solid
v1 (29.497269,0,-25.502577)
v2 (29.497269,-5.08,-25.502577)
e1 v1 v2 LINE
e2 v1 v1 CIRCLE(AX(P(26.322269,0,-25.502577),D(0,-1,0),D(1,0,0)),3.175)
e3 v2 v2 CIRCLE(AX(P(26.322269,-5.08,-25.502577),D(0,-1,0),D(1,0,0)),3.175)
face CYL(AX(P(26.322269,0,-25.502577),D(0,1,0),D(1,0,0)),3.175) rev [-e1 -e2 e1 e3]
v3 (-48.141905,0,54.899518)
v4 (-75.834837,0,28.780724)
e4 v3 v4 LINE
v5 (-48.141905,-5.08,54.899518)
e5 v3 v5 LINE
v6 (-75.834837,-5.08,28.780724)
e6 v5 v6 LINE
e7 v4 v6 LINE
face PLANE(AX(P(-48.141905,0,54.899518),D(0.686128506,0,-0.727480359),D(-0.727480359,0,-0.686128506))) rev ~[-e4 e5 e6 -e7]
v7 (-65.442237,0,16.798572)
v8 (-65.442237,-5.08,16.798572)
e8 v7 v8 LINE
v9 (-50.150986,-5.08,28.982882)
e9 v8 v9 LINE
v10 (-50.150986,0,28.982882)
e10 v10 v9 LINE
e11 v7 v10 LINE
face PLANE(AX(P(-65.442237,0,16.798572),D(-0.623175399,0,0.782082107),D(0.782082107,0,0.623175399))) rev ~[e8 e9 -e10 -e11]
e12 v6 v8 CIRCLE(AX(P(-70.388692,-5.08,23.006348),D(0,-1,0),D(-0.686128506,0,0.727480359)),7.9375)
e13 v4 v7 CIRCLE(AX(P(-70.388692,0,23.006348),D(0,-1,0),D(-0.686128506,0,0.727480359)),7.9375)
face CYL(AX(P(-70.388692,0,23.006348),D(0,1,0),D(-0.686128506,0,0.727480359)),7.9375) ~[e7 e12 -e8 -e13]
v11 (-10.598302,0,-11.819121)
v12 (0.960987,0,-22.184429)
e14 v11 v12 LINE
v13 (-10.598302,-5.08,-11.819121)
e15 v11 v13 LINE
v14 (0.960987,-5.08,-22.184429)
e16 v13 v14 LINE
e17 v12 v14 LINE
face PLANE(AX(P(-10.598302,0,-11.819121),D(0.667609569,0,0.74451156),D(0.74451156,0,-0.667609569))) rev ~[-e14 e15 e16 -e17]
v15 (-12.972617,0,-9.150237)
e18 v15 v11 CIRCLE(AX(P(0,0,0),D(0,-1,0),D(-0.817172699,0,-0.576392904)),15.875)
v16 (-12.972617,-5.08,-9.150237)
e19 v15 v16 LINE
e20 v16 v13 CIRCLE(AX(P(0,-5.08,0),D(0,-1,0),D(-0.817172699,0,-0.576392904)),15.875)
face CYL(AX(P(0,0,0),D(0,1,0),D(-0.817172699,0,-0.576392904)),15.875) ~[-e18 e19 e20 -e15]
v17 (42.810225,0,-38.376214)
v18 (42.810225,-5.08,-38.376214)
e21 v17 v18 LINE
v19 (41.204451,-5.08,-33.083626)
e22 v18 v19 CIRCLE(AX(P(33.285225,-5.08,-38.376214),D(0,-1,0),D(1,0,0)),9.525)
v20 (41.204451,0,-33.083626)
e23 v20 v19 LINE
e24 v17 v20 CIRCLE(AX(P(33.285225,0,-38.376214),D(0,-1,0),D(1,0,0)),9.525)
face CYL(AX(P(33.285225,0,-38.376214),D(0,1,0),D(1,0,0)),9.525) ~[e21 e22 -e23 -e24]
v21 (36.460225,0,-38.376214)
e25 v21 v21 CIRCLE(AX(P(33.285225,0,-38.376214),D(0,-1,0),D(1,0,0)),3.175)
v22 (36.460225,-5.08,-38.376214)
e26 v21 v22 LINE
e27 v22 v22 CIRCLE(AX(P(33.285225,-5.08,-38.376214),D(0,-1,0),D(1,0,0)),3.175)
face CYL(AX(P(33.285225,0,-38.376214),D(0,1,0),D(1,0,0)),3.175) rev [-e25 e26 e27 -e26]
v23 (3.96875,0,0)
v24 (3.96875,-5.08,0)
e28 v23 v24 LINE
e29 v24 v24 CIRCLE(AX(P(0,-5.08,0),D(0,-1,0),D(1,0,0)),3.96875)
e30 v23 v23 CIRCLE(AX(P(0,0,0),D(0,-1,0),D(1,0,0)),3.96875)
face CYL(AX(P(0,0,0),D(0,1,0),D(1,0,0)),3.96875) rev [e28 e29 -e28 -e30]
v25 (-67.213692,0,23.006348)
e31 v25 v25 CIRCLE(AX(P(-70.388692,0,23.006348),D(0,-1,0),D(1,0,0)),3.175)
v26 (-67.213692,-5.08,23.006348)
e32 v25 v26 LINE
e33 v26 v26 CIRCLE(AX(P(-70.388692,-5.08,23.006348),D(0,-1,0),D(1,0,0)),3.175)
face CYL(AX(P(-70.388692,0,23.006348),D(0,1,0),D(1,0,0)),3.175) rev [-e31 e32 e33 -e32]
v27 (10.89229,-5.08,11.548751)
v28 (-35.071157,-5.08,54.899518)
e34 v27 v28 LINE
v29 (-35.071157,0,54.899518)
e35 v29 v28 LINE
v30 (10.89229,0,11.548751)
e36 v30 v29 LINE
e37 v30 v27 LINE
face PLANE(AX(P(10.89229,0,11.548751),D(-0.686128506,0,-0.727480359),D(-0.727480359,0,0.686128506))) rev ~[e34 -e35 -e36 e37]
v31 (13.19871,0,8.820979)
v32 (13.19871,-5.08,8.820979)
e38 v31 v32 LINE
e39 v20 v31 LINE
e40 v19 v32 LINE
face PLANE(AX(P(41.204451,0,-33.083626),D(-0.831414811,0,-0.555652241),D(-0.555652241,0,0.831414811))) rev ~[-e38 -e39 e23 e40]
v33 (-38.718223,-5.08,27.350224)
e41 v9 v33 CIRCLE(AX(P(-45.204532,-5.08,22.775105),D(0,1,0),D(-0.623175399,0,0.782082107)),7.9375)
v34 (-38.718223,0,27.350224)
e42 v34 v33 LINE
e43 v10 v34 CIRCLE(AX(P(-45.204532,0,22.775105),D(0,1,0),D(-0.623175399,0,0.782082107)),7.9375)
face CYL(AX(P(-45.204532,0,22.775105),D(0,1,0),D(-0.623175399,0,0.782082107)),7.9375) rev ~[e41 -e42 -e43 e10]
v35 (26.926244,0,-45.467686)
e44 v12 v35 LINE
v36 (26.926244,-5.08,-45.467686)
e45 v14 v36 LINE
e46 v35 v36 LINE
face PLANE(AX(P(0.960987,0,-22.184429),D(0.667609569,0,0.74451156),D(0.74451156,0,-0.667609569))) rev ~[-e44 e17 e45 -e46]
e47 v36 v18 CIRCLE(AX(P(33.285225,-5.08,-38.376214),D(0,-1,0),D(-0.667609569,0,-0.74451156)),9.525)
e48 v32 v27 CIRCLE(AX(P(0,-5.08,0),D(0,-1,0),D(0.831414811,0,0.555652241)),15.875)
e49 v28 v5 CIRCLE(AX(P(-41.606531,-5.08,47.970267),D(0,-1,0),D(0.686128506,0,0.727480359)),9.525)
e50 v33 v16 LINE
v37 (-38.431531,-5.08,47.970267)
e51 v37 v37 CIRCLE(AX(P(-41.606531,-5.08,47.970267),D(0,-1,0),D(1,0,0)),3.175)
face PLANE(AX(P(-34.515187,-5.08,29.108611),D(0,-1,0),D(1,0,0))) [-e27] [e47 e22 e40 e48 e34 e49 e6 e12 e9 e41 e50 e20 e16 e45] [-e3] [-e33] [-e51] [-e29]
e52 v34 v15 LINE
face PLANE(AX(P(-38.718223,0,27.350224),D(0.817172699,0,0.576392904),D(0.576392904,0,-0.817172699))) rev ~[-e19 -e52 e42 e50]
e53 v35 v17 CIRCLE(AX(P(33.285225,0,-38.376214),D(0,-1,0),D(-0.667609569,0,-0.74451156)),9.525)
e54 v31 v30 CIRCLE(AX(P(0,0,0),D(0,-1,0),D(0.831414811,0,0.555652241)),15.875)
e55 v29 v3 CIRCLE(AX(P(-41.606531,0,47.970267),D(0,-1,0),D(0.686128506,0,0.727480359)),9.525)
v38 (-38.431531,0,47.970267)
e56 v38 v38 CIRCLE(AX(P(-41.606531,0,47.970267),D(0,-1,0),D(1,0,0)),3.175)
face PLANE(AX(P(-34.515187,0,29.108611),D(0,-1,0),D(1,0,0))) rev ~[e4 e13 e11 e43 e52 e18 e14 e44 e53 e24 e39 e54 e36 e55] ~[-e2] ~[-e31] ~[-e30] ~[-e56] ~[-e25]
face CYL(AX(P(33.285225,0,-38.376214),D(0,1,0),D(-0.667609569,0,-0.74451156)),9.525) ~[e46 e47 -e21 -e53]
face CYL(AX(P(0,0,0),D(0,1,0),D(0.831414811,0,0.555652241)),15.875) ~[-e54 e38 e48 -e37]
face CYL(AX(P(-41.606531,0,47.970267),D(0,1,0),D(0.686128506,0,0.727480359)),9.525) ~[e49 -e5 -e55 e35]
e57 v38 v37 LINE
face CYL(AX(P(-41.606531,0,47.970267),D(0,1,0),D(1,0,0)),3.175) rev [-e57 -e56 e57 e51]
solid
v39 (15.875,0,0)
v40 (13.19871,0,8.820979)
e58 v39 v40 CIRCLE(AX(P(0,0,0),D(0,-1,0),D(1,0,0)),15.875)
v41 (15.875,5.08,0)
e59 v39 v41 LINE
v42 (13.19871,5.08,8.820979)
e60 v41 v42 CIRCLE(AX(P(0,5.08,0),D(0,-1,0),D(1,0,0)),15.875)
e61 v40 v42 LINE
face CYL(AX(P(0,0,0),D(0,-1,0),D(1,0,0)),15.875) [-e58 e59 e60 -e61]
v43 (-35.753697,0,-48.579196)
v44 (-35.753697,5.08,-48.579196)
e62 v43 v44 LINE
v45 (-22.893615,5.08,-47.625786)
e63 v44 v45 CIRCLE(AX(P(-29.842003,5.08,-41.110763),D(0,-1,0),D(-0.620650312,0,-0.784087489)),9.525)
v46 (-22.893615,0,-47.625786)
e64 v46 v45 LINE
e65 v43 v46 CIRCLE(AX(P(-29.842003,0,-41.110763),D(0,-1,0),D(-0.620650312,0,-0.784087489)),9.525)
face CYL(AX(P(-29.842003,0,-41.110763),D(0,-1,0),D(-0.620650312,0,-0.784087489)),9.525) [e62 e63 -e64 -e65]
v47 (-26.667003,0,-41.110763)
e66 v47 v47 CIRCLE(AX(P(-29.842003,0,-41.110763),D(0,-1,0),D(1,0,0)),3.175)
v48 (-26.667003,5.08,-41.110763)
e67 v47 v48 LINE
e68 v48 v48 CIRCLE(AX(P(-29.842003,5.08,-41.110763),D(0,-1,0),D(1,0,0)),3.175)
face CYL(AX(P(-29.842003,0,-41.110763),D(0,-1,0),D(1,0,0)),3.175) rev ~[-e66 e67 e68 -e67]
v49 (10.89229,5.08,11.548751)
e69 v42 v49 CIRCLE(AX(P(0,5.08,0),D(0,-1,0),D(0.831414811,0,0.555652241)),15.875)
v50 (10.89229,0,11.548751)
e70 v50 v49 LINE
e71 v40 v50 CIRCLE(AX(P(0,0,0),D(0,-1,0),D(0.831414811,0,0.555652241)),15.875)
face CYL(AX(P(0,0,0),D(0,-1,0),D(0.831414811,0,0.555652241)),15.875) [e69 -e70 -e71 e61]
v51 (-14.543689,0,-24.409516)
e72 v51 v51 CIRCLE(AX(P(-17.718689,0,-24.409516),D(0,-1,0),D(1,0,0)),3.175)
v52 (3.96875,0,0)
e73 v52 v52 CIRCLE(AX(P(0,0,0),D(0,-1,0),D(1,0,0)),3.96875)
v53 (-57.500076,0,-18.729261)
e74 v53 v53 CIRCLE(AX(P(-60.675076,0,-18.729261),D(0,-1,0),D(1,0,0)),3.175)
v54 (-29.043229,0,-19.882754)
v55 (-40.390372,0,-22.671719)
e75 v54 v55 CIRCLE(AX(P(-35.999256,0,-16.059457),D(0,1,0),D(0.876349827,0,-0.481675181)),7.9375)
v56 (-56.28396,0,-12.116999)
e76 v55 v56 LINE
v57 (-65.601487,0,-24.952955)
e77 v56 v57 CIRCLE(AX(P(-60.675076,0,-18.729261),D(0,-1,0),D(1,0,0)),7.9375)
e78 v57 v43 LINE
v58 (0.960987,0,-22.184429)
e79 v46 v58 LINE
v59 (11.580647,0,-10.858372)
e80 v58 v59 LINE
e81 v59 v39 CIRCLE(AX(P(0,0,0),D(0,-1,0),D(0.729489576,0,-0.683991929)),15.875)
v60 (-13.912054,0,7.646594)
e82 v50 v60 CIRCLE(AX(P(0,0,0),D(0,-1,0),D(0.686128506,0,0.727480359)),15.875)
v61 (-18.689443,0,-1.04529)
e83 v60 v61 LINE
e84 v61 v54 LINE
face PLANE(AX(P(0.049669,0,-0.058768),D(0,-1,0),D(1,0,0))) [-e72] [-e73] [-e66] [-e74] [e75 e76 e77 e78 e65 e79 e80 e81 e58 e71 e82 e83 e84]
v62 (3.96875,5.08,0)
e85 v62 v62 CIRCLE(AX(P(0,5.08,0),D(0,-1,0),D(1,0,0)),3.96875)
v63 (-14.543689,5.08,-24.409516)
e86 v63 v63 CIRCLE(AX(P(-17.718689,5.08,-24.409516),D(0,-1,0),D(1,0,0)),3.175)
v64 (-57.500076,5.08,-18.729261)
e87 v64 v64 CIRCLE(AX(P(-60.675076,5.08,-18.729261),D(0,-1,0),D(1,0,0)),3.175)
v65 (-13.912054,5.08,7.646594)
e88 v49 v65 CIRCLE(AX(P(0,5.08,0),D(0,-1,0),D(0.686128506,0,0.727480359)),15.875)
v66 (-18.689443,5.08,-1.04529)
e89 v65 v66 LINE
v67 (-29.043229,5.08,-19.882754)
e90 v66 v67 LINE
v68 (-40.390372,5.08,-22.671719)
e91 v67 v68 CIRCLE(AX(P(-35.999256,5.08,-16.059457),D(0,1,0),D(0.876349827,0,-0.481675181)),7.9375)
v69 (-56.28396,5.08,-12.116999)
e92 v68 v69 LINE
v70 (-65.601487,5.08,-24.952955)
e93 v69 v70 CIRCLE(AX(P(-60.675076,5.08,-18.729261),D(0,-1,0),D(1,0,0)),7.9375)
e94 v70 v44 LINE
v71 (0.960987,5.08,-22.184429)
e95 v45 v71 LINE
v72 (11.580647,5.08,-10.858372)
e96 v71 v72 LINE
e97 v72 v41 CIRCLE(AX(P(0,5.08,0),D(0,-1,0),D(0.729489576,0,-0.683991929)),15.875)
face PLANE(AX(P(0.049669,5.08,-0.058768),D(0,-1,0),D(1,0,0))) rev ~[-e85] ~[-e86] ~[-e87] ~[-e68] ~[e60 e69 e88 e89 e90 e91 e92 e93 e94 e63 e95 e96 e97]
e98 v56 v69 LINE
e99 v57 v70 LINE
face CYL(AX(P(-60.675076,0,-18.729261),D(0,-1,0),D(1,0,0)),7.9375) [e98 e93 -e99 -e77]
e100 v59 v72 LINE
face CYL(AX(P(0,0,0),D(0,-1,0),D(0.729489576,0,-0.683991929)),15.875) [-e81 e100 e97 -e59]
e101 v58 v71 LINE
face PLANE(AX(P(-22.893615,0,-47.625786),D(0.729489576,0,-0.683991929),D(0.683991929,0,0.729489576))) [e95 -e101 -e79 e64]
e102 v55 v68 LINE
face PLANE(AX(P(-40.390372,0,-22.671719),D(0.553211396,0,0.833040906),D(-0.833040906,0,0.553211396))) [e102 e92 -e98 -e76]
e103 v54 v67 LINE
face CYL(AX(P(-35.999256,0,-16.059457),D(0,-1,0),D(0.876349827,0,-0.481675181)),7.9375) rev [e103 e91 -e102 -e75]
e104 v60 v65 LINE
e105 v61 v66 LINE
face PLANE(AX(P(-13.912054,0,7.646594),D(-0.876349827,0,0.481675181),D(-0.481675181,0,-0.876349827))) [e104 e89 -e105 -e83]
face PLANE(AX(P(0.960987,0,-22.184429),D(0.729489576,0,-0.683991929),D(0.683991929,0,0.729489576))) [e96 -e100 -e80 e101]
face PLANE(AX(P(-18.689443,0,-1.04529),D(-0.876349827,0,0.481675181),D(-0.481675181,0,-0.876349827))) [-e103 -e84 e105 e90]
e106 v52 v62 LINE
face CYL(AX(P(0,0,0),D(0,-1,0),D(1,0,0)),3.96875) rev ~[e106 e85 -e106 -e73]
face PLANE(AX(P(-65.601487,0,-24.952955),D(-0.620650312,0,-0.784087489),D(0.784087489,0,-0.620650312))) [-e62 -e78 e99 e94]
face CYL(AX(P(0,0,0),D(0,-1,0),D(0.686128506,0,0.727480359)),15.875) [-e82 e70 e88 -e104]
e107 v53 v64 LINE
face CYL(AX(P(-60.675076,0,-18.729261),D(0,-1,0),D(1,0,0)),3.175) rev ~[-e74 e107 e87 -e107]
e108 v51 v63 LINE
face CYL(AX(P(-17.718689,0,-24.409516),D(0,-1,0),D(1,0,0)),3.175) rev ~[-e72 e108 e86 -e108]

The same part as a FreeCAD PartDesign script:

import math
import FreeCAD as App
import Part
import Sketcher

V = App.Vector
Q = App.Units.Quantity

doc = App.newDocument("Part")
body = doc.addObject("PartDesign::Body", "Body")

# Sketch on XZ plane
sketch1 = body.newObject("Sketcher::SketchObject", "Sketch")
sketch1.AttachmentSupport = (doc.getObject("XZ_Plane"), [""])
sketch1.MapMode = "FlatFace"
sketch1.addGeometry([
    Part.ArcOfCircle(Part.Circle(V(0, 0, 0), V(0, 0, 1), 15.9), math.radians(-144.8), math.radians(-131.88)),  # 0
    Part.LineSegment(V(-10.6, -11.8, 0), V(1, -22.2, 0)),  # 1
    Part.LineSegment(V(1, -22.2, 0), V(26.9, -45.5, 0)),  # 2
    Part.ArcOfCircle(Part.Circle(V(33.3, -38.4, 0), V(0, 0, 1), 9.5), math.radians(-132), math.radians(0)),  # 3
    Part.ArcOfCircle(Part.Circle(V(33.3, -38.4, 0), V(0, 0, 1), 9.5), math.radians(0), math.radians(34)),  # 4
    Part.LineSegment(V(41.2, -33.1, 0), V(13.2, 8.8, 0)),  # 5
    Part.ArcOfCircle(Part.Circle(V(0, 0, 0), V(0, 0, 1), 15.9), math.radians(33.76), math.radians(46.68)),  # 6
    Part.LineSegment(V(10.9, 11.5, 0), V(-35.1, 54.9, 0)),  # 7
    Part.ArcOfCircle(Part.Circle(V(-41.6, 48, 0), V(0, 0, 1), 9.5), math.radians(47), math.radians(133)),  # 8
    Part.LineSegment(V(-48.1, 54.9, 0), V(-75.8, 28.8, 0)),  # 9
    Part.ArcOfCircle(Part.Circle(V(-70.4, 23, 0), V(0, 0, 1), 7.9), math.radians(133), math.radians(309)),  # 10
    Part.LineSegment(V(-65.4, 16.8, 0), V(-50.2, 29, 0)),  # 11
    Part.ArcOfCircle(Part.Circle(V(-45.2, 22.8, 0), V(0, 0, 1), 7.9), math.radians(35), math.radians(129)),  # 12
    Part.LineSegment(V(-38.7, 27.4, 0), V(-13, -9.2, 0)),  # 13
    Part.Circle(V(33.3, -38.4, 0), V(0, 0, 1), 3.2),  # 14
    Part.Circle(V(26.3, -25.5, 0), V(0, 0, 1), 3.2),  # 15
    Part.Circle(V(0, 0, 0), V(0, 0, 1), 4),  # 16
    Part.Circle(V(-70.4, 23, 0), V(0, 0, 1), 3.2),  # 17
    Part.Circle(V(-41.6, 48, 0), V(0, 0, 1), 3.2),  # 18
], False)
sketch1.addConstraint([
    Sketcher.Constraint("Tangent", 0, 2, 1, 1),
    Sketcher.Constraint("Coincident", 1, 2, 2, 1),
    Sketcher.Constraint("Tangent", 2, 2, 3, 1),
    Sketcher.Constraint("Tangent", 3, 2, 4, 1),
    Sketcher.Constraint("Tangent", 4, 2, 5, 1),
    Sketcher.Constraint("Tangent", 5, 2, 6, 1),
    Sketcher.Constraint("Tangent", 6, 2, 7, 1),
    Sketcher.Constraint("Tangent", 7, 2, 8, 1),
    Sketcher.Constraint("Tangent", 8, 2, 9, 1),
    Sketcher.Constraint("Tangent", 9, 2, 10, 1),
    Sketcher.Constraint("Tangent", 10, 2, 11, 1),
    Sketcher.Constraint("Tangent", 11, 2, 12, 2),
    Sketcher.Constraint("Tangent", 12, 1, 13, 1),
    Sketcher.Constraint("Tangent", 13, 2, 0, 1),
    Sketcher.Constraint("Coincident", 0, 3, -1, 1),
    Sketcher.Constraint("Coincident", 6, 3, -1, 1),
    Sketcher.Constraint("Coincident", 16, 3, -1, 1),
    Sketcher.Constraint("Coincident", 14, 3, 3, 3),
    Sketcher.Constraint("Coincident", 17, 3, 10, 3),
    Sketcher.Constraint("Coincident", 18, 3, 8, 3),
    Sketcher.Constraint("Equal", 3, 4),
    Sketcher.Constraint("Equal", 0, 6),
    Sketcher.Constraint("Equal", 4, 8),
    Sketcher.Constraint("Equal", 10, 12),
    Sketcher.Constraint("Equal", 14, 15),
    Sketcher.Constraint("Equal", 15, 17),
    Sketcher.Constraint("Equal", 17, 18),
    Sketcher.Constraint("Parallel", 1, 2),
    Sketcher.Constraint("Horizontal", 14, 3, 3, 2),
    Sketcher.Constraint("Horizontal", 7, 2, 8, 2),
    Sketcher.Constraint("Diameter", 14, Q("0.25 in")),
    Sketcher.Constraint("Diameter", 16, Q("0.3125 in")),
    Sketcher.Constraint("Radius", 0, Q("0.625 in")),
    Sketcher.Constraint("Radius", 3, Q("0.375 in")),
    Sketcher.Constraint("Radius", 10, Q("0.3125 in")),
    Sketcher.Constraint("DistanceX", 1, 2, 5, 2, Q("0.4818001 in")),
    Sketcher.Constraint("DistanceX", 0, 2, -1, 1, 10.598302),
    Sketcher.Constraint("DistanceX", 12, 3, 8, 3, 3.598),
    Sketcher.Constraint("DistanceY", 0, 2, 5, 2, 20.6401),
    Sketcher.Constraint("DistanceX", 9, 2, 10, 2, 10.3926),
    Sketcher.Constraint("DistanceX", 8, 3, -1, 1, 41.606531),
    Sketcher.Constraint("DistanceX", 10, 3, -1, 1, 70.388692),
    Sketcher.Constraint("DistanceY", -1, 1, 10, 3, 23.006348),
    Sketcher.Constraint("DistanceX", -1, 1, 15, 3, 26.322269),
    Sketcher.Constraint("DistanceY", 15, 3, 1, 2, 3.318148),
])
pad1 = body.newObject("PartDesign::Pad", "Pad")
pad1.Profile = sketch1
pad1.Length = Q("0.2 in")
body2 = doc.addObject("PartDesign::Body", "Body001")

# Sketch on XZ plane
sketch2 = body2.newObject("Sketcher::SketchObject", "Sketch001")
sketch2.AttachmentSupport = (doc.getObject("XZ_Plane001"), [""])
sketch2.MapMode = "FlatFace"
sketch2.addGeometry([
    Part.ArcOfCircle(Part.Circle(V(0, 0, 0), V(0, 0, 1), 15.875), math.radians(0), math.radians(33.755651)),  # 0
    Part.ArcOfCircle(Part.Circle(V(0, 0, 0), V(0, 0, 1), 15.875), math.radians(33.755651), math.radians(46.675578)),  # 1
    Part.ArcOfCircle(Part.Circle(V(0, 0, 0), V(0, 0, 1), 15.875), math.radians(46.675578), math.radians(151.205132)),  # 2
    Part.LineSegment(V(-13.912054, 7.646594, 0), V(-18.689443, -1.04529, 0)),  # 3
    Part.LineSegment(V(-18.689443, -1.04529, 0), V(-29.043229, -19.882754, 0)),  # 4
    Part.ArcOfCircle(Part.Circle(V(-35.999256, -16.059457, 0), V(0, 0, 1), 7.9375), math.radians(-123.587608), math.radians(-28.794868)),  # 5
    Part.LineSegment(V(-40.390372, -22.671719, 0), V(-56.28396, -12.116999, 0)),  # 6
    Part.ArcOfCircle(Part.Circle(V(-60.675076, -18.729261, 0), V(0, 0, 1), 7.9375), math.radians(56.412392), math.radians(231.636361)),  # 7
    Part.LineSegment(V(-65.601487, -24.952955, 0), V(-35.753697, -48.579196, 0)),  # 8
    Part.ArcOfCircle(Part.Circle(V(-29.842003, -41.110763, 0), V(0, 0, 1), 9.525), math.radians(-128.363639), math.radians(-43.15638)),  # 9
    Part.LineSegment(V(-22.893615, -47.625786, 0), V(0.960987, -22.184429, 0)),  # 10
    Part.LineSegment(V(0.960987, -22.184429, 0), V(11.580647, -10.858372, 0)),  # 11
    Part.ArcOfCircle(Part.Circle(V(0, 0, 0), V(0, 0, 1), 15.875), math.radians(-43.15638), math.radians(0)),  # 12
    Part.Circle(V(-29.842003, -41.110763, 0), V(0, 0, 1), 3.175),  # 13
    Part.Circle(V(-17.718689, -24.409516, 0), V(0, 0, 1), 3.175),  # 14
    Part.Circle(V(-60.675076, -18.729261, 0), V(0, 0, 1), 3.175),  # 15
    Part.Circle(V(0, 0, 0), V(0, 0, 1), 3.96875),  # 16
], False)
sketch2.addConstraint([
    Sketcher.Constraint("Coincident", 0, 2, 1, 1),
    Sketcher.Constraint("Coincident", 1, 2, 2, 1),
    Sketcher.Constraint("Coincident", 2, 2, 3, 1),
    Sketcher.Constraint("Coincident", 3, 2, 4, 1),
    Sketcher.Constraint("Coincident", 4, 2, 5, 2),
    Sketcher.Constraint("Coincident", 5, 1, 6, 1),
    Sketcher.Constraint("Coincident", 6, 2, 7, 1),
    Sketcher.Constraint("Coincident", 7, 2, 8, 1),
    Sketcher.Constraint("Coincident", 8, 2, 9, 1),
    Sketcher.Constraint("Coincident", 9, 2, 10, 1),
    Sketcher.Constraint("Coincident", 10, 2, 11, 1),
    Sketcher.Constraint("Coincident", 11, 2, 12, 1),
    Sketcher.Constraint("Coincident", 12, 2, 0, 1),
    Sketcher.Constraint("Coincident", 0, 3, -1, 1),
    Sketcher.Constraint("Coincident", 1, 3, -1, 1),
    Sketcher.Constraint("Coincident", 2, 3, -1, 1),
    Sketcher.Constraint("Coincident", 12, 3, -1, 1),
    Sketcher.Constraint("Coincident", 16, 3, -1, 1),
    Sketcher.Constraint("Coincident", 13, 3, 9, 3),
    Sketcher.Constraint("Coincident", 15, 3, 7, 3),
    Sketcher.Constraint("PointOnObject", 12, 2, -1),
    Sketcher.Constraint("Diameter", 13, Q("0.25 in")),
    Sketcher.Constraint("Diameter", 14, Q("0.25 in")),
    Sketcher.Constraint("Diameter", 15, Q("0.25 in")),
    Sketcher.Constraint("Diameter", 16, Q("0.3125 in")),
    Sketcher.Constraint("Radius", 0, Q("0.625 in")),
    Sketcher.Constraint("Radius", 5, Q("0.3125 in")),
    Sketcher.Constraint("Radius", 7, Q("0.3125 in")),
    Sketcher.Constraint("Radius", 9, Q("0.375 in")),
    Sketcher.Constraint("DistanceY", 7, 2, -1, 1, Q("0.9823998 in")),
    Sketcher.Constraint("DistanceY", 3, 2, 2, 2, Q("0.3422001 in")),
    Sketcher.Constraint("Distance", 6, 19.079001),
    Sketcher.Constraint("DistanceY", 6, 2, -1, 1, 12.116999),
    Sketcher.Constraint("Distance", 3, 9.91828),
    Sketcher.Constraint("Distance", 4, 21.495371),
    Sketcher.Constraint("Distance", 10, 34.87556),
    Sketcher.Constraint("DistanceY", 7, 3, -1, 1, 18.729261),
    Sketcher.Constraint("DistanceX", 14, 3, -1, 1, 17.718689),
    Sketcher.Constraint("DistanceX", -1, 1, 0, 2, 13.19871),
    Sketcher.Constraint("DistanceX", -1, 1, 1, 2, 10.89229),
    Sketcher.Constraint("DistanceY", 3, 2, -1, 1, 1.04529),
    Sketcher.Constraint("DistanceX", 4, 2, -1, 1, 29.043229),
    Sketcher.Constraint("DistanceX", 5, 1, -1, 1, 40.390372),
    Sketcher.Constraint("DistanceY", 5, 1, -1, 1, 22.671719),
    Sketcher.Constraint("DistanceY", 10, 2, -1, 1, 22.184429),
    Sketcher.Constraint("DistanceY", 11, 2, -1, 1, 10.858372),
    Sketcher.Constraint("DistanceY", 14, 3, 5, 3, 8.350058),
    Sketcher.Constraint("DistanceY", 9, 3, 4, 2, 21.228009),
    Sketcher.Constraint("DistanceX", 5, 1, 9, 3, 10.548369),
    Sketcher.Constraint("DistanceX", 8, 2, 14, 3, 18.035008),
    Sketcher.Constraint("DistanceX", 9, 3, 9, 2, 6.948388),
])
pad2 = body2.newObject("PartDesign::Pad", "Pad001")
pad2.Profile = sketch2
pad2.Length = Q("0.2 in")
pad2.Reversed = True

doc.recompute()
